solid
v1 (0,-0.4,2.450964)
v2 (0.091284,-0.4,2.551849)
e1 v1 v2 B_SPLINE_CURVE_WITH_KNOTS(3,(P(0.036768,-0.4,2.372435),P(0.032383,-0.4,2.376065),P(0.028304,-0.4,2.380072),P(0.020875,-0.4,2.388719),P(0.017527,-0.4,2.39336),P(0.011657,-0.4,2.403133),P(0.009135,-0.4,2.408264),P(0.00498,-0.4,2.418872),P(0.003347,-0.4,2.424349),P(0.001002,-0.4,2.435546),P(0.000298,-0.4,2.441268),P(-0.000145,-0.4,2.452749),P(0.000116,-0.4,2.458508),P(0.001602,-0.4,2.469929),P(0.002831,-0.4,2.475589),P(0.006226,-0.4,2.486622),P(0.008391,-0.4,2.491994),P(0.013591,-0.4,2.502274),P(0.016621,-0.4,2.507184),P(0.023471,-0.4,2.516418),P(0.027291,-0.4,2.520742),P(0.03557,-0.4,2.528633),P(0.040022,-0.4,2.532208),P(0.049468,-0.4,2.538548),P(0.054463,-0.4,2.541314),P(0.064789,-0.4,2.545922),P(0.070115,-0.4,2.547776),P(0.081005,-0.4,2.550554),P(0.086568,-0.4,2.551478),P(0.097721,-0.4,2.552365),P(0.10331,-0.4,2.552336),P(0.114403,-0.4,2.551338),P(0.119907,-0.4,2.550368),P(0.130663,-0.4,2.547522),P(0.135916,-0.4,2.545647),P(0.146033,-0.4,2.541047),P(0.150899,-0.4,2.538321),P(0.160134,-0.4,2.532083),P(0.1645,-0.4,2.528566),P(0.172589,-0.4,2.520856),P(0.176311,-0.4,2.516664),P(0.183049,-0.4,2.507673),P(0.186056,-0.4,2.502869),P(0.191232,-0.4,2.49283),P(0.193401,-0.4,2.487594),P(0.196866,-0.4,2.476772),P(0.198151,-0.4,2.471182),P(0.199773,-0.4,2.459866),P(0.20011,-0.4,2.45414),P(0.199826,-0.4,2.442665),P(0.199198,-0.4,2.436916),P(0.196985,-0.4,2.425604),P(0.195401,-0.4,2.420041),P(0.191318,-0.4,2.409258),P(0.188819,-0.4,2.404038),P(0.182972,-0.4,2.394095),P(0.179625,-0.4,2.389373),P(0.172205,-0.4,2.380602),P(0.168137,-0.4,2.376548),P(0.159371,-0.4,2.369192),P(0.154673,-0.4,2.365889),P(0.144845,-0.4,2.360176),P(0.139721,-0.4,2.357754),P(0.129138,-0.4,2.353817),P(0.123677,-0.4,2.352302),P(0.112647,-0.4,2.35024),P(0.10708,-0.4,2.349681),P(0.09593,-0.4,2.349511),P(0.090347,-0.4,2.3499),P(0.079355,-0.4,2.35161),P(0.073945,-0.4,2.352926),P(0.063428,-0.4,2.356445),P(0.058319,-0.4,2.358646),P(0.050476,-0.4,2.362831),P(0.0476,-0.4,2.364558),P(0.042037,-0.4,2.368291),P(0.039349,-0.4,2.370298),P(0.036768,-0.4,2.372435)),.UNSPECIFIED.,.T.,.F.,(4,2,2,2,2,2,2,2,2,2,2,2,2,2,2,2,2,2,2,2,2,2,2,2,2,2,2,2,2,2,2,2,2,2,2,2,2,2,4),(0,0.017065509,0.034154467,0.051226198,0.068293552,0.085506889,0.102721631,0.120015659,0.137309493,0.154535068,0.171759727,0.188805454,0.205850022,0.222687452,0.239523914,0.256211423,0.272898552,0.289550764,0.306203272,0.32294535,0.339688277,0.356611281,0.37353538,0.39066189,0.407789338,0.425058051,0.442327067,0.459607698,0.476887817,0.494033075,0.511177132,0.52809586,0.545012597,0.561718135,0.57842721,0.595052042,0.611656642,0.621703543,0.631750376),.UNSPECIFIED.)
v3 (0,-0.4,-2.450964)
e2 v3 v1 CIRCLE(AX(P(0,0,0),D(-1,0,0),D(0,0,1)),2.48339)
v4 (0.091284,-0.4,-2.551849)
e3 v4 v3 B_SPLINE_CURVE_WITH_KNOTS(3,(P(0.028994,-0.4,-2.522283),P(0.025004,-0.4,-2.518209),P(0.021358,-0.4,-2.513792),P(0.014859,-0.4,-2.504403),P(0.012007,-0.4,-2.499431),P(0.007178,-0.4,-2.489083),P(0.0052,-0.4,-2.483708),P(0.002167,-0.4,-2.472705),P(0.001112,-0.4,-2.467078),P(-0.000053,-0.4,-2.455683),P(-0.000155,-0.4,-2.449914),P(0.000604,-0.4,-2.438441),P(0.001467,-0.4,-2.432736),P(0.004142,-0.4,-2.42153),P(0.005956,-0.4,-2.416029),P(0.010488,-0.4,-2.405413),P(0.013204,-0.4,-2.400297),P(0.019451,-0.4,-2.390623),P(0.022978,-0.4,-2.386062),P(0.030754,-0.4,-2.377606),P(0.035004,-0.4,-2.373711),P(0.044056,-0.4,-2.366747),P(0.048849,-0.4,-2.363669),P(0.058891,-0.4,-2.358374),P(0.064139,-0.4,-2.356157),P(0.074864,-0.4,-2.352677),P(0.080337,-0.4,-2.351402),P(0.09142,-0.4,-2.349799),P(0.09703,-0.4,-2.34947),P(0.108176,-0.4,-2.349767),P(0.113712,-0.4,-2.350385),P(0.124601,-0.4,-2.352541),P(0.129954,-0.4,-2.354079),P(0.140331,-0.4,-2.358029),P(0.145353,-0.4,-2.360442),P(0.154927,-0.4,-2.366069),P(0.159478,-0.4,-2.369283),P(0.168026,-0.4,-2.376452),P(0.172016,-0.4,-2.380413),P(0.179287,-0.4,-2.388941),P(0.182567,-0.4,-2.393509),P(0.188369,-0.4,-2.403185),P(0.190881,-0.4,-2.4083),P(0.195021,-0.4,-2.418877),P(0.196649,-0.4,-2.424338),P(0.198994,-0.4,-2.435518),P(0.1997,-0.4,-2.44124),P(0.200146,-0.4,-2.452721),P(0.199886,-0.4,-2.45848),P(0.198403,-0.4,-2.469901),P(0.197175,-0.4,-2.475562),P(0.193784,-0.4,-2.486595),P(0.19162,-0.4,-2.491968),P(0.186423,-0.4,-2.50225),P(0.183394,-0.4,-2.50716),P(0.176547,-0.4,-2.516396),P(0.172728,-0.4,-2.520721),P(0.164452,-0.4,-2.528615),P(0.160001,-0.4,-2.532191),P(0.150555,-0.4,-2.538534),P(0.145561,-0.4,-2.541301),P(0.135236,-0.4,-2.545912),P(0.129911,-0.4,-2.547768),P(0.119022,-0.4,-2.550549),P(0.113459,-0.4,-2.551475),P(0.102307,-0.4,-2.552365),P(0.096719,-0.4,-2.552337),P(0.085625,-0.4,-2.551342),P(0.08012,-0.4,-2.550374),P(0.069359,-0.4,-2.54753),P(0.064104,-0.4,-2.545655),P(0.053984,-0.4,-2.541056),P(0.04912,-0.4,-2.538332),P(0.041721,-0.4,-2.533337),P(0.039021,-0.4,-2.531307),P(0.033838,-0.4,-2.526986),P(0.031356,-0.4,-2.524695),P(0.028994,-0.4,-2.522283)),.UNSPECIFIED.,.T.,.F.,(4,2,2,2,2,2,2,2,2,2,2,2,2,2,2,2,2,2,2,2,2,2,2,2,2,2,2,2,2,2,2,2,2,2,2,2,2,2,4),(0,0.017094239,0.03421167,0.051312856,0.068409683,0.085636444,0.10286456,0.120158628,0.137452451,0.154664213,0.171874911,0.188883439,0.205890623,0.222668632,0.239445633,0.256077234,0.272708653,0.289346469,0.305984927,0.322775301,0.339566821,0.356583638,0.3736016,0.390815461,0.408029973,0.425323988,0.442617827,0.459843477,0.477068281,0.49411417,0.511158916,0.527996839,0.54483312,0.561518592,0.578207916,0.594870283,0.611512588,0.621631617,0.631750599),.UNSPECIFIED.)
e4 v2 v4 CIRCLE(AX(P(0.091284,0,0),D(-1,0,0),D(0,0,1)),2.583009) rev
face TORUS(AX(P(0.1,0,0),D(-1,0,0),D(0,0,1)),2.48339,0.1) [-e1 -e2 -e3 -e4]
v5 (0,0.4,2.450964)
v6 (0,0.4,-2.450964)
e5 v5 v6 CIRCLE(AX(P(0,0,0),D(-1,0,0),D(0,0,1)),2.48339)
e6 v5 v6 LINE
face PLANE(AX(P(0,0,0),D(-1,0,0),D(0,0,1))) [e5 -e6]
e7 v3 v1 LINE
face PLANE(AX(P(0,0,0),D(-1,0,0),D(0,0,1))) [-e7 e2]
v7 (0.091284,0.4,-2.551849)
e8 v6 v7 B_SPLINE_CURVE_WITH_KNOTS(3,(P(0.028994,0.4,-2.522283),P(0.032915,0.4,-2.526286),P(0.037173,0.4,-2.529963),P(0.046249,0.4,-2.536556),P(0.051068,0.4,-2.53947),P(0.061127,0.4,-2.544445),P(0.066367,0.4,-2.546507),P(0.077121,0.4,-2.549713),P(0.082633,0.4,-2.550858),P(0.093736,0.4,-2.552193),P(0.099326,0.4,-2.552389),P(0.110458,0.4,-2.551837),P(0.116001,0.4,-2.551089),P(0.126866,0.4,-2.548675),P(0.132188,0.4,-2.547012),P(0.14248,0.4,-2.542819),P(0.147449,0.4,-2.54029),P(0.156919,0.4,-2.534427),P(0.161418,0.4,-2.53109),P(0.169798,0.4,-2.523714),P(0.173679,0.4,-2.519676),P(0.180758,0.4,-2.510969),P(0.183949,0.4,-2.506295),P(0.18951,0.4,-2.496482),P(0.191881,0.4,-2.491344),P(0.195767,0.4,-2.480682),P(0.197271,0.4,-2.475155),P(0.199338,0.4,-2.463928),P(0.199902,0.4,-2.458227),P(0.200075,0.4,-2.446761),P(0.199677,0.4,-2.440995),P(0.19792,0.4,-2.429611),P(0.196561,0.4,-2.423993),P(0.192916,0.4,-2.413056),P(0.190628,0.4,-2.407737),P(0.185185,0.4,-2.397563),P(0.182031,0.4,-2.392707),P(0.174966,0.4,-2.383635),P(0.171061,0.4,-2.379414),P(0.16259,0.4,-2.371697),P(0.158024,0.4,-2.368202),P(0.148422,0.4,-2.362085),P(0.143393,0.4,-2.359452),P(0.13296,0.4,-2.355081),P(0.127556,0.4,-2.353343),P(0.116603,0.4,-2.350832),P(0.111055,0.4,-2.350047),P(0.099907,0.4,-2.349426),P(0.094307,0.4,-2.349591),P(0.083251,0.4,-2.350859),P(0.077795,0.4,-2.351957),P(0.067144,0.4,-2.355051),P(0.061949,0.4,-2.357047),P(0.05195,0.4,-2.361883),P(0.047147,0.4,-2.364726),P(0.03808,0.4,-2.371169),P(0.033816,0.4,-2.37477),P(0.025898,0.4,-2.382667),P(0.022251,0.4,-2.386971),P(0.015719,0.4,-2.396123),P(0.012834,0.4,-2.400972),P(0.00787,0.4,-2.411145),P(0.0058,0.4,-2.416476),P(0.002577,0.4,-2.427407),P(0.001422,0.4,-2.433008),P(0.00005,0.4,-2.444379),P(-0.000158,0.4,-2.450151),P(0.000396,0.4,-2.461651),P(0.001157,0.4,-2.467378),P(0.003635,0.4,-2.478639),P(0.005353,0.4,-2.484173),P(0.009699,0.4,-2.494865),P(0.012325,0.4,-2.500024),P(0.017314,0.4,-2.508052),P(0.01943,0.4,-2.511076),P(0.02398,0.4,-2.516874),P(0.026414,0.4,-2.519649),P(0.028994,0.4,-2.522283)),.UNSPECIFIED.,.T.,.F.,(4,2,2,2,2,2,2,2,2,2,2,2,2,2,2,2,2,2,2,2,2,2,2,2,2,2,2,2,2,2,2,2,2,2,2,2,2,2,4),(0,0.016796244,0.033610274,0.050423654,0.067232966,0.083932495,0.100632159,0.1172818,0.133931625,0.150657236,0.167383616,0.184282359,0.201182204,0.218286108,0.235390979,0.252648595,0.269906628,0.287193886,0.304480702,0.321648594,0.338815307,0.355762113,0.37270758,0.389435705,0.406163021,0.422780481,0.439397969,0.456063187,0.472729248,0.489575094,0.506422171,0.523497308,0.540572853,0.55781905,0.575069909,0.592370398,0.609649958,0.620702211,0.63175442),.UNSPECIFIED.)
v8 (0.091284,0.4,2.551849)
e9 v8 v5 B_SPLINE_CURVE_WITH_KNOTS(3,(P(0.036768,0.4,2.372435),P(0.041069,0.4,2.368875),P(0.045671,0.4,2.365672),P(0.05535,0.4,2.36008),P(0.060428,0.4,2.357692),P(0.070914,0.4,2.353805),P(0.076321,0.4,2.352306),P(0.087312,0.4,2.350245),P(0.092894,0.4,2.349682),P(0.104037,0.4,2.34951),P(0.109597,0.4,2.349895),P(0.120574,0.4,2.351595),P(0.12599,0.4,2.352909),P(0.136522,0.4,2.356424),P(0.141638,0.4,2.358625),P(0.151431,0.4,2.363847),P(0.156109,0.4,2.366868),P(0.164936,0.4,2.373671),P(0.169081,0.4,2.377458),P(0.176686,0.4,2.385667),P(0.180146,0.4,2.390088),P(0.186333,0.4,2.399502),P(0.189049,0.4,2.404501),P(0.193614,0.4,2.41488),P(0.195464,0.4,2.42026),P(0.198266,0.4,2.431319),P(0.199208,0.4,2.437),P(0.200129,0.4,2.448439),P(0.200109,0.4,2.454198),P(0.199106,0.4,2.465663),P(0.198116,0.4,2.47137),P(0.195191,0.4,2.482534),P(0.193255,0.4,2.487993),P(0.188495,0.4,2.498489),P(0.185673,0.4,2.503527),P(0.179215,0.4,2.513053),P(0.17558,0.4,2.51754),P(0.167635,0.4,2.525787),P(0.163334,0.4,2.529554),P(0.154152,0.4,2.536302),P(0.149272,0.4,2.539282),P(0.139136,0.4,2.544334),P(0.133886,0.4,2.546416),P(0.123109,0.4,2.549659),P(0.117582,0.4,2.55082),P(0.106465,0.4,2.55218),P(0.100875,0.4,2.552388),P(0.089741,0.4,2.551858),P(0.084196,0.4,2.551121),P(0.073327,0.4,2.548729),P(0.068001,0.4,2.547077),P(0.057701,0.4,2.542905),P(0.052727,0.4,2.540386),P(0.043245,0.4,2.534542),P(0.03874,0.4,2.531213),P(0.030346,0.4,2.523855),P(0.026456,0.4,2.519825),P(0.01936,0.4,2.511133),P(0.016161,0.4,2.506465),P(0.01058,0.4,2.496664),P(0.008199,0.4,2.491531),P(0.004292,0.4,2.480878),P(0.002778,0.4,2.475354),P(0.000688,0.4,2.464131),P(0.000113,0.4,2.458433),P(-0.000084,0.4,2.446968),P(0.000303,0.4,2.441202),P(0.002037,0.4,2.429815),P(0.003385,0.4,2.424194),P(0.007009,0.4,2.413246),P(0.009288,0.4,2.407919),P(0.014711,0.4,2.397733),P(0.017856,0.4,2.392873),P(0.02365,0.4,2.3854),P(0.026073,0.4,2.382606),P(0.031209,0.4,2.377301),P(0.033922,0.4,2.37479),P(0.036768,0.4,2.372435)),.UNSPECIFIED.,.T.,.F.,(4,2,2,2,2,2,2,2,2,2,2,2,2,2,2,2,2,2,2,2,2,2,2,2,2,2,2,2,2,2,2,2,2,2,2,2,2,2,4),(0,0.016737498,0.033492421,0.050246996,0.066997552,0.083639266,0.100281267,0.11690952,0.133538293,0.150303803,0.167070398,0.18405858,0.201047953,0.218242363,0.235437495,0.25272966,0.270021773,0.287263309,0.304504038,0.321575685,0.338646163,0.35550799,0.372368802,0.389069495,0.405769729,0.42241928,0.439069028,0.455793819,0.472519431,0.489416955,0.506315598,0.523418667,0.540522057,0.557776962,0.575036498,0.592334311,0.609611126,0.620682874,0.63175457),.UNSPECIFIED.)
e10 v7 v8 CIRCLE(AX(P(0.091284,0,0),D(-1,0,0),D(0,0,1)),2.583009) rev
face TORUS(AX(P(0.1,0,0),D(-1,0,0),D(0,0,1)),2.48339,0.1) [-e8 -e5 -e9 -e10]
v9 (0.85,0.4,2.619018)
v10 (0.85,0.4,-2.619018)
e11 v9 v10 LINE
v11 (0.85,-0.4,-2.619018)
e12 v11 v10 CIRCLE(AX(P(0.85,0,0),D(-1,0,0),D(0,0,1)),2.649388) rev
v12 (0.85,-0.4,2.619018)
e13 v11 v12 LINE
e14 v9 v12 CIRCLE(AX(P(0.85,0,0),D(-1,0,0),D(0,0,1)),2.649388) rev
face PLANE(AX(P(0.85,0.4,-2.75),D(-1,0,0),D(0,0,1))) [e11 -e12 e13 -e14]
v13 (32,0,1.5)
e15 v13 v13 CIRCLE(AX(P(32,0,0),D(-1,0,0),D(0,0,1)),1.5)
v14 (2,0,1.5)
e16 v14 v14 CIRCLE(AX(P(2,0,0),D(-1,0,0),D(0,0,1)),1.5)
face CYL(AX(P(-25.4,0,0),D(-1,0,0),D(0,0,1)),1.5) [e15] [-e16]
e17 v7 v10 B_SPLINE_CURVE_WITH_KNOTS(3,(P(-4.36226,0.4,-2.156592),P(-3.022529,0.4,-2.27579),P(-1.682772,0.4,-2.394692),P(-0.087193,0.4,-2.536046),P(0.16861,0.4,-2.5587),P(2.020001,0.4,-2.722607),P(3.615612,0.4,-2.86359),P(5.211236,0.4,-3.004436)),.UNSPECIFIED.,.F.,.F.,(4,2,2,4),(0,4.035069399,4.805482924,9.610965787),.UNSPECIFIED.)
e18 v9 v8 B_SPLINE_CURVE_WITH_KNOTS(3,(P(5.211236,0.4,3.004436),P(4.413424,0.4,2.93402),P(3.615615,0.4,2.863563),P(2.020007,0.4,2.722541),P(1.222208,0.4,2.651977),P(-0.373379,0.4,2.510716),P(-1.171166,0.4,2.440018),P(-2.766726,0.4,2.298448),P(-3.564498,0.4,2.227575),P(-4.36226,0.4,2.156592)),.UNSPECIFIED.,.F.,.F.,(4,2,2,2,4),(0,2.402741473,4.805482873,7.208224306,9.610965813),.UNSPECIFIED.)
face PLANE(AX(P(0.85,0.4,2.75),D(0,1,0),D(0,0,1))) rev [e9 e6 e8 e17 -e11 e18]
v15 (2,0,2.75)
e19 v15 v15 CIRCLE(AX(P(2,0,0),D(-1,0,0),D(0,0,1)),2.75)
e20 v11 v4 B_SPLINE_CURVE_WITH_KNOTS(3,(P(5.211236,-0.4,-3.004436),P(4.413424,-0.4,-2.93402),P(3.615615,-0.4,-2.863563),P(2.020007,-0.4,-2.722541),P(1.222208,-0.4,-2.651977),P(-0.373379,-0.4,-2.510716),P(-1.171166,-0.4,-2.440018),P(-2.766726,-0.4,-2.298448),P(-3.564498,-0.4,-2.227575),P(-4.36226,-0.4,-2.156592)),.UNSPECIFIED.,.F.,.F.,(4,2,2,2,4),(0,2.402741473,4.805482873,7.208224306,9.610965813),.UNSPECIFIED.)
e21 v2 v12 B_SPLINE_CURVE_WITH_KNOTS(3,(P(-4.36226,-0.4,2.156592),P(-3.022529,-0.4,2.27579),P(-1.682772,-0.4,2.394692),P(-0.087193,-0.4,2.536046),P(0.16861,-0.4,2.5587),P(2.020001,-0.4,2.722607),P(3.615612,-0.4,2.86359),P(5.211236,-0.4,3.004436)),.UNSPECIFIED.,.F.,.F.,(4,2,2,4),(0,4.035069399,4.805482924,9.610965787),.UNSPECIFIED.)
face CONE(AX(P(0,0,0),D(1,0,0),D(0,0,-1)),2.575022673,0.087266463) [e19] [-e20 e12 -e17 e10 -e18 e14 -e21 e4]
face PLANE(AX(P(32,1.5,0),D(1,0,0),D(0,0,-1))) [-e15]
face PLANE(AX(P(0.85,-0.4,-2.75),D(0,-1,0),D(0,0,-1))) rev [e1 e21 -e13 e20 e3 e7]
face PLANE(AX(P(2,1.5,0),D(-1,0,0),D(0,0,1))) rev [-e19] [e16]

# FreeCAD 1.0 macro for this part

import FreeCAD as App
import Part
import Sketcher
from FreeCAD import Vector
Q = App.Units.Quantity


def edges_at(feature, points):
    """Names of the edges that pass closest to the given points."""
    edges = feature.Shape.Edges
    near = lambda p: min(range(len(edges)), key=lambda i: edges[i].distToShape(Part.Vertex(*p))[0])
    return sorted({f"Edge{near(p) + 1}" for p in points})

doc = App.newDocument("Part")
params = doc.addObject("Spreadsheet::Sheet", "Params")
for row, (alias, value) in enumerate([
    ("sketch1_width", "32 mm"),
    ("sketch1_width2", "30 mm"),
    ("sketch1_height", "1.5 mm"),
    ("sketch1_height2", "1.25 mm"),
    ("revolution_angle", "360 deg"),
    ("fillet_radius", "0.1 mm"),
    ("sketch2_width", "0.8 mm"),
    ("sketch2_height", "5.5 mm"),
    ("pocket1_length", "0.85 mm"),
], start=1):
    params.set(f"A{row}", alias)
    params.set(f"B{row}", "=" + value)
    params.setAlias(f"B{row}", alias)

body = doc.addObject("PartDesign::Body", "Body")

# Sketch on XY plane
sketch1 = body.newObject("Sketcher::SketchObject", "Sketch")
sketch1.AttachmentSupport = (doc.getObject("XY_Plane"), [""])
sketch1.MapMode = "FlatFace"
sketch1.addGeometry([
    Part.LineSegment(Vector(2, 1.5, 0), Vector(2, 2.75, 0)),  # 0
    Part.LineSegment(Vector(2, 2.75, 0), Vector(0, 2.575023, 0)),  # 1
    Part.LineSegment(Vector(0, 2.575023, 0), Vector(0, 0, 0)),  # 2
    Part.LineSegment(Vector(0, 0, 0), Vector(32, 0, 0)),  # 3
    Part.LineSegment(Vector(32, 0, 0), Vector(32, 1.5, 0)),  # 4
    Part.LineSegment(Vector(32, 1.5, 0), Vector(2, 1.5, 0)),  # 5
], False)
sketch1.addConstraint([
    Sketcher.Constraint("Coincident", 0, 2, 1, 1),
    Sketcher.Constraint("Coincident", 1, 2, 2, 1),
    Sketcher.Constraint("Coincident", 2, 2, 3, 1),
    Sketcher.Constraint("Coincident", 3, 2, 4, 1),
    Sketcher.Constraint("Coincident", 4, 2, 5, 1),
    Sketcher.Constraint("Coincident", 5, 2, 0, 1),
    Sketcher.Constraint("Vertical", 0),
    Sketcher.Constraint("Vertical", 2),
    Sketcher.Constraint("Horizontal", 3),
    Sketcher.Constraint("Vertical", 4),
    Sketcher.Constraint("Horizontal", 5),
    Sketcher.Constraint("Coincident", 2, 2, -1, 1),
    Sketcher.Constraint("DistanceX", 3, 1, 3, 2, Q("32 mm")),
    Sketcher.Constraint("DistanceX", 5, 2, 5, 1, Q("30 mm")),
    Sketcher.Constraint("Angle", 1, Q("-175 deg")),
    Sketcher.Constraint("DistanceY", 4, 1, 4, 2, Q("1.5 mm")),
    Sketcher.Constraint("DistanceY", 0, 1, 0, 2, Q("1.25 mm")),
])
sketch1.setExpression("Constraints[12]", "Params.sketch1_width")
sketch1.setExpression("Constraints[13]", "Params.sketch1_width2")
sketch1.setExpression("Constraints[15]", "Params.sketch1_height")
sketch1.setExpression("Constraints[16]", "Params.sketch1_height2")
revolution = body.newObject("PartDesign::Revolution", "Revolution")
revolution.Profile = sketch1
revolution.ReferenceAxis = (sketch1, ["H_Axis"])
revolution.setExpression("Angle", "Params.revolution_angle")
doc.recompute()

fillet = body.newObject("PartDesign::Fillet", "Fillet")
fillet.Base = (revolution, edges_at(revolution, [(0, 0, -2.575)]))
fillet.setExpression("Radius", "Params.fillet_radius")

# Sketch on YZ plane
sketch2 = body.newObject("Sketcher::SketchObject", "Sketch001")
sketch2.AttachmentSupport = (doc.getObject("YZ_Plane"), [""])
sketch2.MapMode = "FlatFace"
sketch2.addGeometry([
    Part.LineSegment(Vector(0.4, 2.75, 0), Vector(-0.4, 2.75, 0)),
    Part.LineSegment(Vector(-0.4, 2.75, 0), Vector(-0.4, -2.75, 0)),
    Part.LineSegment(Vector(-0.4, -2.75, 0), Vector(0.4, -2.75, 0)),
    Part.LineSegment(Vector(0.4, -2.75, 0), Vector(0.4, 2.75, 0)),
], False)
sketch2.addConstraint([
    Sketcher.Constraint("Coincident", 0, 2, 1, 1),
    Sketcher.Constraint("Coincident", 1, 2, 2, 1),
    Sketcher.Constraint("Coincident", 2, 2, 3, 1),
    Sketcher.Constraint("Coincident", 3, 2, 0, 1),
    Sketcher.Constraint("Horizontal", 0),
    Sketcher.Constraint("Vertical", 1),
    Sketcher.Constraint("Horizontal", 2),
    Sketcher.Constraint("Vertical", 3),
    Sketcher.Constraint("Symmetric", 0, 2, 2, 2, -1, 1),
    Sketcher.Constraint("DistanceX", 0, 2, 0, 1, Q("0.8 mm")),
    Sketcher.Constraint("DistanceY", 1, 2, 1, 1, Q("5.5 mm")),
])
sketch2.setExpression("Constraints[9]", "Params.sketch2_width")
sketch2.setExpression("Constraints[10]", "Params.sketch2_height")
pocket1 = body.newObject("PartDesign::Pocket", "Pocket")
pocket1.Profile = sketch2
pocket1.setExpression("Length", "Params.pocket1_length")
pocket1.Reversed = True

doc.recompute()
